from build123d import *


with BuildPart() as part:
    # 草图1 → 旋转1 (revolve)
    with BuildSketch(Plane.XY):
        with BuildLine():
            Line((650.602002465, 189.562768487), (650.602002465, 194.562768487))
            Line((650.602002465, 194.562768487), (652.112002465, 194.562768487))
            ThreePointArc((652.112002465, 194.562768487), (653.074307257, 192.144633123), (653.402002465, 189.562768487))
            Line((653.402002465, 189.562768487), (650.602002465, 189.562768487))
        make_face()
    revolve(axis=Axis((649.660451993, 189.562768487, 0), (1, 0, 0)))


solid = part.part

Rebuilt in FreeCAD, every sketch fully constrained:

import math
import FreeCAD as App
import Part
import Sketcher
from FreeCAD import Vector
Q = App.Units.Quantity

doc = App.newDocument("Part")
body = doc.addObject("PartDesign::Body", "Body")

sketch1 = doc.addObject("Sketcher::SketchObject", "Sketch")
body.addObject(sketch1)
sketch1.AttachmentSupport = (doc.XY_Plane, [""])
sketch1.MapMode = "FlatFace"
sketch1.addGeometry([
    Part.LineSegment(Vector(650.6, 194.6, 0), Vector(650.6, 189.6, 0)),
    Part.LineSegment(Vector(650.6, 189.6, 0), Vector(653.4, 189.6, 0)),
    Part.ArcOfCircle(Part.Circle(Vector(643.1, 189.6, 0), Vector(0, 0, 1), 10.3), math.radians(0), math.radians(29)),
    Part.LineSegment(Vector(652.1, 194.6, 0), Vector(650.6, 194.6, 0)),
], False)
sketch1.addGeometry(Part.LineSegment(Vector(643.1, 189.6, 0), Vector(653.4, 189.6, 0)), True)
sketch1.addConstraint([
    Sketcher.Constraint("Coincident", 0, 2, 1, 1),
    Sketcher.Constraint("Coincident", 1, 2, 2, 1),
    Sketcher.Constraint("Coincident", 2, 2, 3, 1),
    Sketcher.Constraint("Coincident", 3, 2, 0, 1),
    Sketcher.Constraint("Vertical", 0),
    Sketcher.Constraint("Horizontal", 1),
    Sketcher.Constraint("Horizontal", 3),
    Sketcher.Constraint("Horizontal", 4),
    Sketcher.Constraint("Coincident", 4, 1, 2, 3),
    Sketcher.Constraint("Coincident", 4, 2, 1, 2),
    Sketcher.Constraint("DistanceY", 0, 2, 0, 1, Q("5 mm")),
    Sketcher.Constraint("DistanceX", 1, 1, 1, 2, Q("2.8 mm")),
    Sketcher.Constraint("DistanceX", 3, 2, 3, 1, Q("1.51 mm")),
    Sketcher.Constraint("DistanceX", -1, 1, 2, 3, Q("643.06708 mm")),
    Sketcher.Constraint("DistanceY", -1, 1, 2, 3, Q("189.562768 mm")),
])
revolution = doc.addObject("PartDesign::Revolution", "Revolution")
body.addObject(revolution)
revolution.Profile = sketch1
revolution.ReferenceAxis = (sketch1, ["Axis0"])
revolution.Angle = 360

doc.recompute()
